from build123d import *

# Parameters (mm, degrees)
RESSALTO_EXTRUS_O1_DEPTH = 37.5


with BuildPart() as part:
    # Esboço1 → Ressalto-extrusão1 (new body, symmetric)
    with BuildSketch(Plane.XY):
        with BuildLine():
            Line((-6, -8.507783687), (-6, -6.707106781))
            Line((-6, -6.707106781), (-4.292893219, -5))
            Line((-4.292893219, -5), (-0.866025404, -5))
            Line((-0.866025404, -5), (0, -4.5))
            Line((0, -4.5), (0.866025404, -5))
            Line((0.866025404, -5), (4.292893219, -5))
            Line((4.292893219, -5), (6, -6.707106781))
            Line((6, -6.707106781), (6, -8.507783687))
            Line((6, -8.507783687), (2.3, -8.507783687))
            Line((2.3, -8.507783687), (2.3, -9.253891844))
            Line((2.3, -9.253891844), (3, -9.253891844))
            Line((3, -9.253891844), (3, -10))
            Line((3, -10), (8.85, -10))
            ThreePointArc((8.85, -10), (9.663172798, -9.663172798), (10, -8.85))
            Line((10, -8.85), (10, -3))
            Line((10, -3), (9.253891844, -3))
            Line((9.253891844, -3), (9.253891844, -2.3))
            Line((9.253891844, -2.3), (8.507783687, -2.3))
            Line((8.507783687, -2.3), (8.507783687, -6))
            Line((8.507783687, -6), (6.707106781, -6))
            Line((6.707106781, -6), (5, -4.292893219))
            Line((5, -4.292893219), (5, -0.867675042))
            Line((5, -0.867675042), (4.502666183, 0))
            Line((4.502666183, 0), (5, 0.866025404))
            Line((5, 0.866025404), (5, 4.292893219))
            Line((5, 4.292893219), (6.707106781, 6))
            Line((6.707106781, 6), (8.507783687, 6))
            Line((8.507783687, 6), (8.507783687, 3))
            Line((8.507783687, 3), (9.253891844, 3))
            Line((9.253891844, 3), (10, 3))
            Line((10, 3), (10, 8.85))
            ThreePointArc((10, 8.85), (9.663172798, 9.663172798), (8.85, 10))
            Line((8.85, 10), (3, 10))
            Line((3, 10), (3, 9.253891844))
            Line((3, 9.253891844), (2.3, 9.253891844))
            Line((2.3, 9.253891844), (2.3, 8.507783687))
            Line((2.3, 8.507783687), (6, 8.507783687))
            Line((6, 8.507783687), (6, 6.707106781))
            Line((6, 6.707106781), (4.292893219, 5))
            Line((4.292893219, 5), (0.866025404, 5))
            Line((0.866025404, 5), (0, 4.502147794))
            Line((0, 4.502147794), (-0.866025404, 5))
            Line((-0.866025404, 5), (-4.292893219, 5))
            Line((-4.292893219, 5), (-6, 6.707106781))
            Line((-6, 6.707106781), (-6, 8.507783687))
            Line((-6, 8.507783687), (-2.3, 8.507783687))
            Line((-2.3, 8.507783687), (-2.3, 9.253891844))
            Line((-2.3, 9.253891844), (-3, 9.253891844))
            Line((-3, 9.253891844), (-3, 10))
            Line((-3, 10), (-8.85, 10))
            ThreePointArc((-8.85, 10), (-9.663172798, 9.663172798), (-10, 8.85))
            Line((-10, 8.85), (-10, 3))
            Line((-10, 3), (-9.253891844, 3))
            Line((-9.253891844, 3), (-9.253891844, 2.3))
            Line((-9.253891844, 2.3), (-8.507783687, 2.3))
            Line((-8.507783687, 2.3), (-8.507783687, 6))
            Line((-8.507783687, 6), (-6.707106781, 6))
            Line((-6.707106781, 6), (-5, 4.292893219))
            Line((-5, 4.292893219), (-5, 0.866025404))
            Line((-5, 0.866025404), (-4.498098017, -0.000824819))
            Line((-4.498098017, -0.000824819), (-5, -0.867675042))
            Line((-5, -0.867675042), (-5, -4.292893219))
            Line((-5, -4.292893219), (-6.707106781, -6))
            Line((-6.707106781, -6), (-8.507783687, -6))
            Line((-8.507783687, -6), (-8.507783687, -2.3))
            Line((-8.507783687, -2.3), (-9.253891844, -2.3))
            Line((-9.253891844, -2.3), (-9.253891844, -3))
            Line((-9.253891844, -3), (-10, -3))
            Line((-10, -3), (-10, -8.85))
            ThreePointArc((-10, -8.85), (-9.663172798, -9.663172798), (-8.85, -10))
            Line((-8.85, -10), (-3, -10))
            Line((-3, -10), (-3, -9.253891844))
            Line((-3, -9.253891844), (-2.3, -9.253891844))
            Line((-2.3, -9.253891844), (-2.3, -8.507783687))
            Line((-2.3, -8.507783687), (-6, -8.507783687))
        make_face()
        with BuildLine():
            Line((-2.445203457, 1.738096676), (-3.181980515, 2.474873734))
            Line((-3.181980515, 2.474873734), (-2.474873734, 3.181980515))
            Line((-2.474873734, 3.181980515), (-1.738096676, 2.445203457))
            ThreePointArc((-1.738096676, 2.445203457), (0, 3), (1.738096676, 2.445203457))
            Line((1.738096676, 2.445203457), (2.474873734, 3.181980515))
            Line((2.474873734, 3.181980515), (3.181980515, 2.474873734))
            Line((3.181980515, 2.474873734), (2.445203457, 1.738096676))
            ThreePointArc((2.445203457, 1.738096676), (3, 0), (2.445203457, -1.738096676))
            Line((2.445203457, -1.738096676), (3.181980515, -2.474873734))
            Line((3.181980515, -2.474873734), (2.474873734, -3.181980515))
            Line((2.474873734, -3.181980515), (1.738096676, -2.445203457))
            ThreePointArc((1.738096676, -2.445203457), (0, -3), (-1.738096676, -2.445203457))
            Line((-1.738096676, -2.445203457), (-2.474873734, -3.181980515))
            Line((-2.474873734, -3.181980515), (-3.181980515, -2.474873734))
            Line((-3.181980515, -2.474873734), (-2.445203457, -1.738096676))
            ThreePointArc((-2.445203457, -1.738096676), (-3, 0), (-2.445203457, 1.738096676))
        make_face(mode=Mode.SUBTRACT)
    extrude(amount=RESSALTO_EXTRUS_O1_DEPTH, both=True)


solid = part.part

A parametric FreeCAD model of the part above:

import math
import FreeCAD as App
import Part
import Sketcher
Q = App.Units.Quantity

doc = App.newDocument("Part")
body = doc.addObject("PartDesign::Body", "Body")

# Sketch on XY plane
sketch1 = body.newObject("Sketcher::SketchObject", "Sketch")
sketch1.AttachmentSupport = (doc.getObject("XY_Plane"), [""])
sketch1.MapMode = "FlatFace"
sketch1.addGeometry([
    Part.LineSegment(App.Vector(-6, -8.5, 0), App.Vector(-6, -6.7, 0)),  # 0
    Part.LineSegment(App.Vector(-6, -6.7, 0), App.Vector(-4.3, -5, 0)),  # 1
    Part.LineSegment(App.Vector(-4.3, -5, 0), App.Vector(-0.9, -5, 0)),  # 2
    Part.LineSegment(App.Vector(-0.9, -5, 0), App.Vector(0, -4.5, 0)),  # 3
    Part.LineSegment(App.Vector(0, -4.5, 0), App.Vector(0.9, -5, 0)),  # 4
    Part.LineSegment(App.Vector(0.9, -5, 0), App.Vector(4.3, -5, 0)),  # 5
    Part.LineSegment(App.Vector(4.3, -5, 0), App.Vector(6, -6.7, 0)),  # 6
    Part.LineSegment(App.Vector(6, -6.7, 0), App.Vector(6, -8.5, 0)),  # 7
    Part.LineSegment(App.Vector(6, -8.5, 0), App.Vector(2.3, -8.5, 0)),  # 8
    Part.LineSegment(App.Vector(2.3, -8.5, 0), App.Vector(2.3, -9.3, 0)),  # 9
    Part.LineSegment(App.Vector(2.3, -9.3, 0), App.Vector(3, -9.3, 0)),  # 10
    Part.LineSegment(App.Vector(3, -9.3, 0), App.Vector(3, -10, 0)),  # 11
    Part.LineSegment(App.Vector(3, -10, 0), App.Vector(8.8, -10, 0)),  # 12
    Part.ArcOfCircle(Part.Circle(App.Vector(8.8, -8.8, 0), App.Vector(0, 0, 1), 1.2), math.radians(-90), math.radians(0)),  # 13
    Part.LineSegment(App.Vector(10, -8.8, 0), App.Vector(10, -3, 0)),  # 14
    Part.LineSegment(App.Vector(10, -3, 0), App.Vector(9.3, -3, 0)),  # 15
    Part.LineSegment(App.Vector(9.3, -3, 0), App.Vector(9.3, -2.3, 0)),  # 16
    Part.LineSegment(App.Vector(9.3, -2.3, 0), App.Vector(8.5, -2.3, 0)),  # 17
    Part.LineSegment(App.Vector(8.5, -2.3, 0), App.Vector(8.5, -6, 0)),  # 18
    Part.LineSegment(App.Vector(8.5, -6, 0), App.Vector(6.7, -6, 0)),  # 19
    Part.LineSegment(App.Vector(6.7, -6, 0), App.Vector(5, -4.3, 0)),  # 20
    Part.LineSegment(App.Vector(5, -4.3, 0), App.Vector(5, -0.9, 0)),  # 21
    Part.LineSegment(App.Vector(5, -0.9, 0), App.Vector(4.5, 0, 0)),  # 22
    Part.LineSegment(App.Vector(4.5, 0, 0), App.Vector(5, 0.9, 0)),  # 23
    Part.LineSegment(App.Vector(5, 0.9, 0), App.Vector(5, 4.3, 0)),  # 24
    Part.LineSegment(App.Vector(5, 4.3, 0), App.Vector(6.7, 6, 0)),  # 25
    Part.LineSegment(App.Vector(6.7, 6, 0), App.Vector(8.5, 6, 0)),  # 26
    Part.LineSegment(App.Vector(8.5, 6, 0), App.Vector(8.5, 3, 0)),  # 27
    Part.LineSegment(App.Vector(8.5, 3, 0), App.Vector(10, 3, 0)),  # 28
    Part.LineSegment(App.Vector(10, 3, 0), App.Vector(10, 8.8, 0)),  # 29
    Part.ArcOfCircle(Part.Circle(App.Vector(8.8, 8.8, 0), App.Vector(0, 0, 1), 1.2), math.radians(0), math.radians(90)),  # 30
    Part.LineSegment(App.Vector(8.8, 10, 0), App.Vector(3, 10, 0)),  # 31
    Part.LineSegment(App.Vector(3, 10, 0), App.Vector(3, 9.3, 0)),  # 32
    Part.LineSegment(App.Vector(3, 9.3, 0), App.Vector(2.3, 9.3, 0)),  # 33
    Part.LineSegment(App.Vector(2.3, 9.3, 0), App.Vector(2.3, 8.5, 0)),  # 34
    Part.LineSegment(App.Vector(2.3, 8.5, 0), App.Vector(6, 8.5, 0)),  # 35
    Part.LineSegment(App.Vector(6, 8.5, 0), App.Vector(6, 6.7, 0)),  # 36
    Part.LineSegment(App.Vector(6, 6.7, 0), App.Vector(4.3, 5, 0)),  # 37
    Part.LineSegment(App.Vector(4.3, 5, 0), App.Vector(0.9, 5, 0)),  # 38
    Part.LineSegment(App.Vector(0.9, 5, 0), App.Vector(0, 4.5, 0)),  # 39
    Part.LineSegment(App.Vector(0, 4.5, 0), App.Vector(-0.9, 5, 0)),  # 40
    Part.LineSegment(App.Vector(-0.9, 5, 0), App.Vector(-4.3, 5, 0)),  # 41
    Part.LineSegment(App.Vector(-4.3, 5, 0), App.Vector(-6, 6.7, 0)),  # 42
    Part.LineSegment(App.Vector(-6, 6.7, 0), App.Vector(-6, 8.5, 0)),  # 43
    Part.LineSegment(App.Vector(-6, 8.5, 0), App.Vector(-2.3, 8.5, 0)),  # 44
    Part.LineSegment(App.Vector(-2.3, 8.5, 0), App.Vector(-2.3, 9.3, 0)),  # 45
    Part.LineSegment(App.Vector(-2.3, 9.3, 0), App.Vector(-3, 9.3, 0)),  # 46
    Part.LineSegment(App.Vector(-3, 9.3, 0), App.Vector(-3, 10, 0)),  # 47
    Part.LineSegment(App.Vector(-3, 10, 0), App.Vector(-8.8, 10, 0)),  # 48
    Part.ArcOfCircle(Part.Circle(App.Vector(-8.8, 8.8, 0), App.Vector(0, 0, 1), 1.2), math.radians(90), math.radians(180)),  # 49
    Part.LineSegment(App.Vector(-10, 8.8, 0), App.Vector(-10, 3, 0)),  # 50
    Part.LineSegment(App.Vector(-10, 3, 0), App.Vector(-9.3, 3, 0)),  # 51
    Part.LineSegment(App.Vector(-9.3, 3, 0), App.Vector(-9.3, 2.3, 0)),  # 52
    Part.LineSegment(App.Vector(-9.3, 2.3, 0), App.Vector(-8.5, 2.3, 0)),  # 53
    Part.LineSegment(App.Vector(-8.5, 2.3, 0), App.Vector(-8.5, 6, 0)),  # 54
    Part.LineSegment(App.Vector(-8.5, 6, 0), App.Vector(-6.7, 6, 0)),  # 55
    Part.LineSegment(App.Vector(-6.7, 6, 0), App.Vector(-5, 4.3, 0)),  # 56
    Part.LineSegment(App.Vector(-5, 4.3, 0), App.Vector(-5, 0.9, 0)),  # 57
    Part.LineSegment(App.Vector(-5, 0.9, 0), App.Vector(-4.5, 0, 0)),  # 58
    Part.LineSegment(App.Vector(-4.5, 0, 0), App.Vector(-5, -0.9, 0)),  # 59
    Part.LineSegment(App.Vector(-5, -0.9, 0), App.Vector(-5, -4.3, 0)),  # 60
    Part.LineSegment(App.Vector(-5, -4.3, 0), App.Vector(-6.7, -6, 0)),  # 61
    Part.LineSegment(App.Vector(-6.7, -6, 0), App.Vector(-8.5, -6, 0)),  # 62
    Part.LineSegment(App.Vector(-8.5, -6, 0), App.Vector(-8.5, -2.3, 0)),  # 63
    Part.LineSegment(App.Vector(-8.5, -2.3, 0), App.Vector(-9.3, -2.3, 0)),  # 64
    Part.LineSegment(App.Vector(-9.3, -2.3, 0), App.Vector(-9.3, -3, 0)),  # 65
    Part.LineSegment(App.Vector(-9.3, -3, 0), App.Vector(-10, -3, 0)),  # 66
    Part.LineSegment(App.Vector(-10, -3, 0), App.Vector(-10, -8.8, 0)),  # 67
    Part.ArcOfCircle(Part.Circle(App.Vector(-8.8, -8.8, 0), App.Vector(0, 0, 1), 1.2), math.radians(-180), math.radians(-90)),  # 68
    Part.LineSegment(App.Vector(-8.8, -10, 0), App.Vector(-3, -10, 0)),  # 69
    Part.LineSegment(App.Vector(-3, -10, 0), App.Vector(-3, -9.3, 0)),  # 70
    Part.LineSegment(App.Vector(-3, -9.3, 0), App.Vector(-2.3, -9.3, 0)),  # 71
    Part.LineSegment(App.Vector(-2.3, -9.3, 0), App.Vector(-2.3, -8.5, 0)),  # 72
    Part.LineSegment(App.Vector(-2.3, -8.5, 0), App.Vector(-6, -8.5, 0)),  # 73
    Part.ArcOfCircle(Part.Circle(App.Vector(0, 0, 0), App.Vector(0, 0, 1), 3), math.radians(145), math.radians(215)),  # 74
    Part.LineSegment(App.Vector(-2.4, 1.7, 0), App.Vector(-3.2, 2.5, 0)),  # 75
    Part.LineSegment(App.Vector(-3.2, 2.5, 0), App.Vector(-2.5, 3.2, 0)),  # 76
    Part.LineSegment(App.Vector(-2.5, 3.2, 0), App.Vector(-1.7, 2.4, 0)),  # 77
    Part.ArcOfCircle(Part.Circle(App.Vector(0, 0, 0), App.Vector(0, 0, 1), 3), math.radians(55), math.radians(125)),  # 78
    Part.LineSegment(App.Vector(1.7, 2.4, 0), App.Vector(2.5, 3.2, 0)),  # 79
    Part.LineSegment(App.Vector(2.5, 3.2, 0), App.Vector(3.2, 2.5, 0)),  # 80
    Part.LineSegment(App.Vector(3.2, 2.5, 0), App.Vector(2.4, 1.7, 0)),  # 81
    Part.ArcOfCircle(Part.Circle(App.Vector(0, 0, 0), App.Vector(0, 0, 1), 3), math.radians(-35), math.radians(35)),  # 82
    Part.LineSegment(App.Vector(2.4, -1.7, 0), App.Vector(3.2, -2.5, 0)),  # 83
    Part.LineSegment(App.Vector(3.2, -2.5, 0), App.Vector(2.5, -3.2, 0)),  # 84
    Part.LineSegment(App.Vector(2.5, -3.2, 0), App.Vector(1.7, -2.4, 0)),  # 85
    Part.ArcOfCircle(Part.Circle(App.Vector(0, 0, 0), App.Vector(0, 0, 1), 3), math.radians(-125), math.radians(-55)),  # 86
    Part.LineSegment(App.Vector(-1.7, -2.4, 0), App.Vector(-2.5, -3.2, 0)),  # 87
    Part.LineSegment(App.Vector(-2.5, -3.2, 0), App.Vector(-3.2, -2.5, 0)),  # 88
    Part.LineSegment(App.Vector(-3.2, -2.5, 0), App.Vector(-2.4, -1.7, 0)),  # 89
], False)
sketch1.addConstraint([
    Sketcher.Constraint("Coincident", 0, 2, 1, 1),
    Sketcher.Constraint("Coincident", 1, 2, 2, 1),
    Sketcher.Constraint("Coincident", 2, 2, 3, 1),
    Sketcher.Constraint("Coincident", 3, 2, 4, 1),
    Sketcher.Constraint("Coincident", 4, 2, 5, 1),
    Sketcher.Constraint("Coincident", 5, 2, 6, 1),
    Sketcher.Constraint("Coincident", 6, 2, 7, 1),
    Sketcher.Constraint("Coincident", 7, 2, 8, 1),
    Sketcher.Constraint("Coincident", 8, 2, 9, 1),
    Sketcher.Constraint("Coincident", 9, 2, 10, 1),
    Sketcher.Constraint("Coincident", 10, 2, 11, 1),
    Sketcher.Constraint("Coincident", 11, 2, 12, 1),
    Sketcher.Constraint("Tangent", 12, 2, 13, 1),
    Sketcher.Constraint("Tangent", 13, 2, 14, 1),
    Sketcher.Constraint("Coincident", 14, 2, 15, 1),
    Sketcher.Constraint("Coincident", 15, 2, 16, 1),
    Sketcher.Constraint("Coincident", 16, 2, 17, 1),
    Sketcher.Constraint("Coincident", 17, 2, 18, 1),
    Sketcher.Constraint("Coincident", 18, 2, 19, 1),
    Sketcher.Constraint("Coincident", 19, 2, 20, 1),
    Sketcher.Constraint("Coincident", 20, 2, 21, 1),
    Sketcher.Constraint("Coincident", 21, 2, 22, 1),
    Sketcher.Constraint("Coincident", 22, 2, 23, 1),
    Sketcher.Constraint("Coincident", 23, 2, 24, 1),
    Sketcher.Constraint("Coincident", 24, 2, 25, 1),
    Sketcher.Constraint("Coincident", 25, 2, 26, 1),
    Sketcher.Constraint("Coincident", 26, 2, 27, 1),
    Sketcher.Constraint("Coincident", 27, 2, 28, 1),
    Sketcher.Constraint("Coincident", 28, 2, 29, 1),
    Sketcher.Constraint("Tangent", 29, 2, 30, 1),
    Sketcher.Constraint("Tangent", 30, 2, 31, 1),
    Sketcher.Constraint("Coincident", 31, 2, 32, 1),
    Sketcher.Constraint("Coincident", 32, 2, 33, 1),
    Sketcher.Constraint("Coincident", 33, 2, 34, 1),
    Sketcher.Constraint("Coincident", 34, 2, 35, 1),
    Sketcher.Constraint("Coincident", 35, 2, 36, 1),
    Sketcher.Constraint("Coincident", 36, 2, 37, 1),
    Sketcher.Constraint("Coincident", 37, 2, 38, 1),
    Sketcher.Constraint("Coincident", 38, 2, 39, 1),
    Sketcher.Constraint("Coincident", 39, 2, 40, 1),
    Sketcher.Constraint("Coincident", 40, 2, 41, 1),
    Sketcher.Constraint("Coincident", 41, 2, 42, 1),
    Sketcher.Constraint("Coincident", 42, 2, 43, 1),
    Sketcher.Constraint("Coincident", 43, 2, 44, 1),
    Sketcher.Constraint("Coincident", 44, 2, 45, 1),
    Sketcher.Constraint("Coincident", 45, 2, 46, 1),
    Sketcher.Constraint("Coincident", 46, 2, 47, 1),
    Sketcher.Constraint("Coincident", 47, 2, 48, 1),
    Sketcher.Constraint("Tangent", 48, 2, 49, 1),
    Sketcher.Constraint("Tangent", 49, 2, 50, 1),
    Sketcher.Constraint("Coincident", 50, 2, 51, 1),
    Sketcher.Constraint("Coincident", 51, 2, 52, 1),
    Sketcher.Constraint("Coincident", 52, 2, 53, 1),
    Sketcher.Constraint("Coincident", 53, 2, 54, 1),
    Sketcher.Constraint("Coincident", 54, 2, 55, 1),
    Sketcher.Constraint("Coincident", 55, 2, 56, 1),
    Sketcher.Constraint("Coincident", 56, 2, 57, 1),
    Sketcher.Constraint("Coincident", 57, 2, 58, 1),
    Sketcher.Constraint("Coincident", 58, 2, 59, 1),
    Sketcher.Constraint("Coincident", 59, 2, 60, 1),
    Sketcher.Constraint("Coincident", 60, 2, 61, 1),
    Sketcher.Constraint("Coincident", 61, 2, 62, 1),
    Sketcher.Constraint("Coincident", 62, 2, 63, 1),
    Sketcher.Constraint("Coincident", 63, 2, 64, 1),
    Sketcher.Constraint("Coincident", 64, 2, 65, 1),
    Sketcher.Constraint("Coincident", 65, 2, 66, 1),
    Sketcher.Constraint("Coincident", 66, 2, 67, 1),
    Sketcher.Constraint("Tangent", 67, 2, 68, 1),
    Sketcher.Constraint("Tangent", 68, 2, 69, 1),
    Sketcher.Constraint("Coincident", 69, 2, 70, 1),
    Sketcher.Constraint("Coincident", 70, 2, 71, 1),
    Sketcher.Constraint("Coincident", 71, 2, 72, 1),
    Sketcher.Constraint("Coincident", 72, 2, 73, 1),
    Sketcher.Constraint("Coincident", 73, 2, 0, 1),
    Sketcher.Constraint("Coincident", 74, 1, 75, 1),
    Sketcher.Constraint("Coincident", 75, 2, 76, 1),
    Sketcher.Constraint("Coincident", 76, 2, 77, 1),
    Sketcher.Constraint("Coincident", 77, 2, 78, 2),
    Sketcher.Constraint("Coincident", 78, 1, 79, 1),
    Sketcher.Constraint("Coincident", 79, 2, 80, 1),
    Sketcher.Constraint("Coincident", 80, 2, 81, 1),
    Sketcher.Constraint("Coincident", 81, 2, 82, 2),
    Sketcher.Constraint("Coincident", 82, 1, 83, 1),
    Sketcher.Constraint("Coincident", 83, 2, 84, 1),
    Sketcher.Constraint("Coincident", 84, 2, 85, 1),
    Sketcher.Constraint("Coincident", 85, 2, 86, 2),
    Sketcher.Constraint("Coincident", 86, 1, 87, 1),
    Sketcher.Constraint("Coincident", 87, 2, 88, 1),
    Sketcher.Constraint("Coincident", 88, 2, 89, 1),
    Sketcher.Constraint("Coincident", 89, 2, 74, 2),
    Sketcher.Constraint("Vertical", 0),
    Sketcher.Constraint("Horizontal", 2),
    Sketcher.Constraint("Horizontal", 5),
    Sketcher.Constraint("Vertical", 7),
    Sketcher.Constraint("Horizontal", 8),
    Sketcher.Constraint("Vertical", 9),
    Sketcher.Constraint("Horizontal", 10),
    Sketcher.Constraint("Vertical", 11),
    Sketcher.Constraint("Horizontal", 12),
    Sketcher.Constraint("Vertical", 14),
    Sketcher.Constraint("Horizontal", 15),
    Sketcher.Constraint("Vertical", 16),
    Sketcher.Constraint("Horizontal", 17),
    Sketcher.Constraint("Vertical", 18),
    Sketcher.Constraint("Horizontal", 19),
    Sketcher.Constraint("Vertical", 21),
    Sketcher.Constraint("Vertical", 24),
    Sketcher.Constraint("Horizontal", 26),
    Sketcher.Constraint("Vertical", 27),
    Sketcher.Constraint("Horizontal", 28),
    Sketcher.Constraint("Vertical", 29),
    Sketcher.Constraint("Horizontal", 31),
    Sketcher.Constraint("Vertical", 32),
    Sketcher.Constraint("Horizontal", 33),
    Sketcher.Constraint("Vertical", 34),
    Sketcher.Constraint("Horizontal", 35),
    Sketcher.Constraint("Vertical", 36),
    Sketcher.Constraint("Horizontal", 38),
    Sketcher.Constraint("Horizontal", 41),
    Sketcher.Constraint("Vertical", 43),
    Sketcher.Constraint("Horizontal", 44),
    Sketcher.Constraint("Vertical", 45),
    Sketcher.Constraint("Horizontal", 46),
    Sketcher.Constraint("Vertical", 47),
    Sketcher.Constraint("Horizontal", 48),
    Sketcher.Constraint("Vertical", 50),
    Sketcher.Constraint("Horizontal", 51),
    Sketcher.Constraint("Vertical", 52),
    Sketcher.Constraint("Horizontal", 53),
    Sketcher.Constraint("Vertical", 54),
    Sketcher.Constraint("Horizontal", 55),
    Sketcher.Constraint("Vertical", 57),
    Sketcher.Constraint("Vertical", 60),
    Sketcher.Constraint("Horizontal", 62),
    Sketcher.Constraint("Vertical", 63),
    Sketcher.Constraint("Horizontal", 64),
    Sketcher.Constraint("Vertical", 65),
    Sketcher.Constraint("Horizontal", 66),
    Sketcher.Constraint("Vertical", 67),
    Sketcher.Constraint("Horizontal", 69),
    Sketcher.Constraint("Vertical", 70),
    Sketcher.Constraint("Horizontal", 71),
    Sketcher.Constraint("Vertical", 72),
    Sketcher.Constraint("Horizontal", 73),
    Sketcher.Constraint("Coincident", 74, 3, -1, 1),
    Sketcher.Constraint("Coincident", 78, 3, -1, 1),
    Sketcher.Constraint("Coincident", 82, 3, -1, 1),
    Sketcher.Constraint("Coincident", 86, 3, -1, 1),
    Sketcher.Constraint("Equal", 13, 30),
    Sketcher.Constraint("Equal", 30, 49),
    Sketcher.Constraint("Equal", 49, 68),
    Sketcher.Constraint("Equal", 74, 78),
    Sketcher.Constraint("Equal", 78, 82),
    Sketcher.Constraint("Equal", 82, 86),
    Sketcher.Constraint("Symmetric", 13, 3, 49, 3, -1, 1),
    Sketcher.Constraint("Symmetric", 30, 3, 68, 3, -1, 1),
    Sketcher.Constraint("Symmetric", 0, 2, 36, 2, -1, 1),
    Sketcher.Constraint("Symmetric", 1, 2, 37, 2, -1, 1),
    Sketcher.Constraint("Symmetric", 4, 2, 40, 2, -1, 1),
    Sketcher.Constraint("Symmetric", 6, 2, 42, 2, -1, 1),
    Sketcher.Constraint("Symmetric", 8, 2, 44, 2, -1, 1),
    Sketcher.Constraint("Symmetric", 10, 2, 46, 2, -1, 1),
    Sketcher.Constraint("Symmetric", 15, 2, 51, 2, -1, 1),
    Sketcher.Constraint("Symmetric", 17, 2, 53, 2, -1, 1),
    Sketcher.Constraint("Symmetric", 19, 2, 55, 2, -1, 1),
    Sketcher.Constraint("Symmetric", 20, 2, 56, 2, -1, 1),
    Sketcher.Constraint("Symmetric", 24, 2, 60, 2, -1, 1),
    Sketcher.Constraint("Symmetric", 25, 2, 61, 2, -1, 1),
    Sketcher.Constraint("Symmetric", 32, 2, 70, 2, -1, 1),
    Sketcher.Constraint("Symmetric", 34, 2, 72, 2, -1, 1),
    Sketcher.Constraint("Symmetric", 75, 2, 83, 2, -1, 1),
    Sketcher.Constraint("Symmetric", 76, 2, 84, 2, -1, 1),
    Sketcher.Constraint("Symmetric", 79, 2, 87, 2, -1, 1),
    Sketcher.Constraint("Symmetric", 80, 2, 88, 2, -1, 1),
    Sketcher.Constraint("Symmetric", 30, 3, 49, 3, -2),
    Sketcher.Constraint("Symmetric", 2, 2, 4, 2, -2),
    Sketcher.Constraint("Symmetric", 0, 2, 6, 2, -2),
    Sketcher.Constraint("Symmetric", 34, 2, 44, 2, -2),
    Sketcher.Constraint("Symmetric", 32, 2, 46, 2, -2),
    Sketcher.Constraint("Symmetric", 26, 2, 54, 2, -2),
    Sketcher.Constraint("Symmetric", 24, 2, 56, 2, -2),
    Sketcher.Constraint("Symmetric", 17, 2, 63, 2, -2),
    Sketcher.Constraint("Symmetric", 15, 2, 65, 2, -2),
    Sketcher.Constraint("Symmetric", 76, 2, 79, 2, -2),
    Sketcher.Constraint("Symmetric", 75, 2, 80, 2, -2),
    Sketcher.Constraint("PointOnObject", 3, 2, -2),
    Sketcher.Constraint("PointOnObject", 22, 2, -1),
    Sketcher.Constraint("PointOnObject", 39, 2, -2),
    Sketcher.Constraint("Perpendicular", 1, 6),
    Sketcher.Constraint("Parallel", 6, 20),
    Sketcher.Constraint("Perpendicular", 20, 25),
    Sketcher.Constraint("Perpendicular", 37, 42),
    Sketcher.Constraint("Perpendicular", 61, 75),
    Sketcher.Constraint("Perpendicular", 75, 76),
    Sketcher.Constraint("Perpendicular", 76, 77),
    Sketcher.Constraint("Perpendicular", 77, 79),
    Sketcher.Constraint("Perpendicular", 79, 80),
    Sketcher.Constraint("Perpendicular", 80, 81),
    Sketcher.Constraint("Perpendicular", 81, 83),
    Sketcher.Constraint("Perpendicular", 84, 85),
    Sketcher.Constraint("Perpendicular", 85, 87),
    Sketcher.Constraint("Perpendicular", 88, 89),
    Sketcher.Constraint("Horizontal", 28, 2, 50, 2),
    Sketcher.Constraint("Horizontal", 23, 2, 57, 2),
    Sketcher.Constraint("Horizontal", 21, 2, 59, 2),
    Sketcher.Constraint("Vertical", 4, 2, 38, 2),
    Sketcher.Constraint("Equal", 15, 17),
    Sketcher.Constraint("Equal", 62, 0),
    Sketcher.Constraint("Equal", 66, 9),
    Sketcher.Constraint("Equal", 9, 11),
    Sketcher.Constraint("Equal", 69, 14),
    Sketcher.Constraint("Equal", 71, 16),
    Sketcher.Constraint("Equal", 73, 18),
    Sketcher.Constraint("Equal", 41, 24),
    Sketcher.Constraint("Equal", 6, 20),
    Sketcher.Constraint("Equal", 58, 59),
    Sketcher.Constraint("Equal", 4, 76),
    Sketcher.Constraint("Equal", 75, 77),
    Sketcher.Constraint("Radius", 74, 3.0),
    Sketcher.Constraint("DistanceY", 27, 2, 27, 1, 3.0),
    Sketcher.Constraint("Angle", 3, Q("30 deg")),
    Sketcher.Constraint("Radius", 13, 1.15),
    Sketcher.Constraint("Distance", 3, 1.0),
    Sketcher.Constraint("DistanceX", 8, 2, 8, 1, 3.7),
    Sketcher.Constraint("DistanceX", 0, 2, -1, 1, 6.0),
    Sketcher.Constraint("DistanceY", 1, 2, -1, 1, 5.0),
    Sketcher.Constraint("DistanceY", 11, 2, -1, 1, 10.0),
    Sketcher.Constraint("DistanceX", -1, 1, 13, 2, 10.0),
    Sketcher.Constraint("Distance", 22, 1.0001),
    Sketcher.Constraint("DistanceX", 15, 2, 15, 1, 0.746108),
    Sketcher.Constraint("DistanceY", 21, 1, 21, 2, 3.425218),
    Sketcher.Constraint("DistanceX", 58, 2, -1, 1, 4.498098),
    Sketcher.Constraint("Distance", 23, 0.99867),
    Sketcher.Constraint("Distance", 75, 1.04196),
    Sketcher.Constraint("Distance", 39, 0.998928),
])
pad1 = body.newObject("PartDesign::Pad", "Pad")
pad1.Profile = sketch1
pad1.Length = 75
pad1.Midplane = True

doc.recompute()
